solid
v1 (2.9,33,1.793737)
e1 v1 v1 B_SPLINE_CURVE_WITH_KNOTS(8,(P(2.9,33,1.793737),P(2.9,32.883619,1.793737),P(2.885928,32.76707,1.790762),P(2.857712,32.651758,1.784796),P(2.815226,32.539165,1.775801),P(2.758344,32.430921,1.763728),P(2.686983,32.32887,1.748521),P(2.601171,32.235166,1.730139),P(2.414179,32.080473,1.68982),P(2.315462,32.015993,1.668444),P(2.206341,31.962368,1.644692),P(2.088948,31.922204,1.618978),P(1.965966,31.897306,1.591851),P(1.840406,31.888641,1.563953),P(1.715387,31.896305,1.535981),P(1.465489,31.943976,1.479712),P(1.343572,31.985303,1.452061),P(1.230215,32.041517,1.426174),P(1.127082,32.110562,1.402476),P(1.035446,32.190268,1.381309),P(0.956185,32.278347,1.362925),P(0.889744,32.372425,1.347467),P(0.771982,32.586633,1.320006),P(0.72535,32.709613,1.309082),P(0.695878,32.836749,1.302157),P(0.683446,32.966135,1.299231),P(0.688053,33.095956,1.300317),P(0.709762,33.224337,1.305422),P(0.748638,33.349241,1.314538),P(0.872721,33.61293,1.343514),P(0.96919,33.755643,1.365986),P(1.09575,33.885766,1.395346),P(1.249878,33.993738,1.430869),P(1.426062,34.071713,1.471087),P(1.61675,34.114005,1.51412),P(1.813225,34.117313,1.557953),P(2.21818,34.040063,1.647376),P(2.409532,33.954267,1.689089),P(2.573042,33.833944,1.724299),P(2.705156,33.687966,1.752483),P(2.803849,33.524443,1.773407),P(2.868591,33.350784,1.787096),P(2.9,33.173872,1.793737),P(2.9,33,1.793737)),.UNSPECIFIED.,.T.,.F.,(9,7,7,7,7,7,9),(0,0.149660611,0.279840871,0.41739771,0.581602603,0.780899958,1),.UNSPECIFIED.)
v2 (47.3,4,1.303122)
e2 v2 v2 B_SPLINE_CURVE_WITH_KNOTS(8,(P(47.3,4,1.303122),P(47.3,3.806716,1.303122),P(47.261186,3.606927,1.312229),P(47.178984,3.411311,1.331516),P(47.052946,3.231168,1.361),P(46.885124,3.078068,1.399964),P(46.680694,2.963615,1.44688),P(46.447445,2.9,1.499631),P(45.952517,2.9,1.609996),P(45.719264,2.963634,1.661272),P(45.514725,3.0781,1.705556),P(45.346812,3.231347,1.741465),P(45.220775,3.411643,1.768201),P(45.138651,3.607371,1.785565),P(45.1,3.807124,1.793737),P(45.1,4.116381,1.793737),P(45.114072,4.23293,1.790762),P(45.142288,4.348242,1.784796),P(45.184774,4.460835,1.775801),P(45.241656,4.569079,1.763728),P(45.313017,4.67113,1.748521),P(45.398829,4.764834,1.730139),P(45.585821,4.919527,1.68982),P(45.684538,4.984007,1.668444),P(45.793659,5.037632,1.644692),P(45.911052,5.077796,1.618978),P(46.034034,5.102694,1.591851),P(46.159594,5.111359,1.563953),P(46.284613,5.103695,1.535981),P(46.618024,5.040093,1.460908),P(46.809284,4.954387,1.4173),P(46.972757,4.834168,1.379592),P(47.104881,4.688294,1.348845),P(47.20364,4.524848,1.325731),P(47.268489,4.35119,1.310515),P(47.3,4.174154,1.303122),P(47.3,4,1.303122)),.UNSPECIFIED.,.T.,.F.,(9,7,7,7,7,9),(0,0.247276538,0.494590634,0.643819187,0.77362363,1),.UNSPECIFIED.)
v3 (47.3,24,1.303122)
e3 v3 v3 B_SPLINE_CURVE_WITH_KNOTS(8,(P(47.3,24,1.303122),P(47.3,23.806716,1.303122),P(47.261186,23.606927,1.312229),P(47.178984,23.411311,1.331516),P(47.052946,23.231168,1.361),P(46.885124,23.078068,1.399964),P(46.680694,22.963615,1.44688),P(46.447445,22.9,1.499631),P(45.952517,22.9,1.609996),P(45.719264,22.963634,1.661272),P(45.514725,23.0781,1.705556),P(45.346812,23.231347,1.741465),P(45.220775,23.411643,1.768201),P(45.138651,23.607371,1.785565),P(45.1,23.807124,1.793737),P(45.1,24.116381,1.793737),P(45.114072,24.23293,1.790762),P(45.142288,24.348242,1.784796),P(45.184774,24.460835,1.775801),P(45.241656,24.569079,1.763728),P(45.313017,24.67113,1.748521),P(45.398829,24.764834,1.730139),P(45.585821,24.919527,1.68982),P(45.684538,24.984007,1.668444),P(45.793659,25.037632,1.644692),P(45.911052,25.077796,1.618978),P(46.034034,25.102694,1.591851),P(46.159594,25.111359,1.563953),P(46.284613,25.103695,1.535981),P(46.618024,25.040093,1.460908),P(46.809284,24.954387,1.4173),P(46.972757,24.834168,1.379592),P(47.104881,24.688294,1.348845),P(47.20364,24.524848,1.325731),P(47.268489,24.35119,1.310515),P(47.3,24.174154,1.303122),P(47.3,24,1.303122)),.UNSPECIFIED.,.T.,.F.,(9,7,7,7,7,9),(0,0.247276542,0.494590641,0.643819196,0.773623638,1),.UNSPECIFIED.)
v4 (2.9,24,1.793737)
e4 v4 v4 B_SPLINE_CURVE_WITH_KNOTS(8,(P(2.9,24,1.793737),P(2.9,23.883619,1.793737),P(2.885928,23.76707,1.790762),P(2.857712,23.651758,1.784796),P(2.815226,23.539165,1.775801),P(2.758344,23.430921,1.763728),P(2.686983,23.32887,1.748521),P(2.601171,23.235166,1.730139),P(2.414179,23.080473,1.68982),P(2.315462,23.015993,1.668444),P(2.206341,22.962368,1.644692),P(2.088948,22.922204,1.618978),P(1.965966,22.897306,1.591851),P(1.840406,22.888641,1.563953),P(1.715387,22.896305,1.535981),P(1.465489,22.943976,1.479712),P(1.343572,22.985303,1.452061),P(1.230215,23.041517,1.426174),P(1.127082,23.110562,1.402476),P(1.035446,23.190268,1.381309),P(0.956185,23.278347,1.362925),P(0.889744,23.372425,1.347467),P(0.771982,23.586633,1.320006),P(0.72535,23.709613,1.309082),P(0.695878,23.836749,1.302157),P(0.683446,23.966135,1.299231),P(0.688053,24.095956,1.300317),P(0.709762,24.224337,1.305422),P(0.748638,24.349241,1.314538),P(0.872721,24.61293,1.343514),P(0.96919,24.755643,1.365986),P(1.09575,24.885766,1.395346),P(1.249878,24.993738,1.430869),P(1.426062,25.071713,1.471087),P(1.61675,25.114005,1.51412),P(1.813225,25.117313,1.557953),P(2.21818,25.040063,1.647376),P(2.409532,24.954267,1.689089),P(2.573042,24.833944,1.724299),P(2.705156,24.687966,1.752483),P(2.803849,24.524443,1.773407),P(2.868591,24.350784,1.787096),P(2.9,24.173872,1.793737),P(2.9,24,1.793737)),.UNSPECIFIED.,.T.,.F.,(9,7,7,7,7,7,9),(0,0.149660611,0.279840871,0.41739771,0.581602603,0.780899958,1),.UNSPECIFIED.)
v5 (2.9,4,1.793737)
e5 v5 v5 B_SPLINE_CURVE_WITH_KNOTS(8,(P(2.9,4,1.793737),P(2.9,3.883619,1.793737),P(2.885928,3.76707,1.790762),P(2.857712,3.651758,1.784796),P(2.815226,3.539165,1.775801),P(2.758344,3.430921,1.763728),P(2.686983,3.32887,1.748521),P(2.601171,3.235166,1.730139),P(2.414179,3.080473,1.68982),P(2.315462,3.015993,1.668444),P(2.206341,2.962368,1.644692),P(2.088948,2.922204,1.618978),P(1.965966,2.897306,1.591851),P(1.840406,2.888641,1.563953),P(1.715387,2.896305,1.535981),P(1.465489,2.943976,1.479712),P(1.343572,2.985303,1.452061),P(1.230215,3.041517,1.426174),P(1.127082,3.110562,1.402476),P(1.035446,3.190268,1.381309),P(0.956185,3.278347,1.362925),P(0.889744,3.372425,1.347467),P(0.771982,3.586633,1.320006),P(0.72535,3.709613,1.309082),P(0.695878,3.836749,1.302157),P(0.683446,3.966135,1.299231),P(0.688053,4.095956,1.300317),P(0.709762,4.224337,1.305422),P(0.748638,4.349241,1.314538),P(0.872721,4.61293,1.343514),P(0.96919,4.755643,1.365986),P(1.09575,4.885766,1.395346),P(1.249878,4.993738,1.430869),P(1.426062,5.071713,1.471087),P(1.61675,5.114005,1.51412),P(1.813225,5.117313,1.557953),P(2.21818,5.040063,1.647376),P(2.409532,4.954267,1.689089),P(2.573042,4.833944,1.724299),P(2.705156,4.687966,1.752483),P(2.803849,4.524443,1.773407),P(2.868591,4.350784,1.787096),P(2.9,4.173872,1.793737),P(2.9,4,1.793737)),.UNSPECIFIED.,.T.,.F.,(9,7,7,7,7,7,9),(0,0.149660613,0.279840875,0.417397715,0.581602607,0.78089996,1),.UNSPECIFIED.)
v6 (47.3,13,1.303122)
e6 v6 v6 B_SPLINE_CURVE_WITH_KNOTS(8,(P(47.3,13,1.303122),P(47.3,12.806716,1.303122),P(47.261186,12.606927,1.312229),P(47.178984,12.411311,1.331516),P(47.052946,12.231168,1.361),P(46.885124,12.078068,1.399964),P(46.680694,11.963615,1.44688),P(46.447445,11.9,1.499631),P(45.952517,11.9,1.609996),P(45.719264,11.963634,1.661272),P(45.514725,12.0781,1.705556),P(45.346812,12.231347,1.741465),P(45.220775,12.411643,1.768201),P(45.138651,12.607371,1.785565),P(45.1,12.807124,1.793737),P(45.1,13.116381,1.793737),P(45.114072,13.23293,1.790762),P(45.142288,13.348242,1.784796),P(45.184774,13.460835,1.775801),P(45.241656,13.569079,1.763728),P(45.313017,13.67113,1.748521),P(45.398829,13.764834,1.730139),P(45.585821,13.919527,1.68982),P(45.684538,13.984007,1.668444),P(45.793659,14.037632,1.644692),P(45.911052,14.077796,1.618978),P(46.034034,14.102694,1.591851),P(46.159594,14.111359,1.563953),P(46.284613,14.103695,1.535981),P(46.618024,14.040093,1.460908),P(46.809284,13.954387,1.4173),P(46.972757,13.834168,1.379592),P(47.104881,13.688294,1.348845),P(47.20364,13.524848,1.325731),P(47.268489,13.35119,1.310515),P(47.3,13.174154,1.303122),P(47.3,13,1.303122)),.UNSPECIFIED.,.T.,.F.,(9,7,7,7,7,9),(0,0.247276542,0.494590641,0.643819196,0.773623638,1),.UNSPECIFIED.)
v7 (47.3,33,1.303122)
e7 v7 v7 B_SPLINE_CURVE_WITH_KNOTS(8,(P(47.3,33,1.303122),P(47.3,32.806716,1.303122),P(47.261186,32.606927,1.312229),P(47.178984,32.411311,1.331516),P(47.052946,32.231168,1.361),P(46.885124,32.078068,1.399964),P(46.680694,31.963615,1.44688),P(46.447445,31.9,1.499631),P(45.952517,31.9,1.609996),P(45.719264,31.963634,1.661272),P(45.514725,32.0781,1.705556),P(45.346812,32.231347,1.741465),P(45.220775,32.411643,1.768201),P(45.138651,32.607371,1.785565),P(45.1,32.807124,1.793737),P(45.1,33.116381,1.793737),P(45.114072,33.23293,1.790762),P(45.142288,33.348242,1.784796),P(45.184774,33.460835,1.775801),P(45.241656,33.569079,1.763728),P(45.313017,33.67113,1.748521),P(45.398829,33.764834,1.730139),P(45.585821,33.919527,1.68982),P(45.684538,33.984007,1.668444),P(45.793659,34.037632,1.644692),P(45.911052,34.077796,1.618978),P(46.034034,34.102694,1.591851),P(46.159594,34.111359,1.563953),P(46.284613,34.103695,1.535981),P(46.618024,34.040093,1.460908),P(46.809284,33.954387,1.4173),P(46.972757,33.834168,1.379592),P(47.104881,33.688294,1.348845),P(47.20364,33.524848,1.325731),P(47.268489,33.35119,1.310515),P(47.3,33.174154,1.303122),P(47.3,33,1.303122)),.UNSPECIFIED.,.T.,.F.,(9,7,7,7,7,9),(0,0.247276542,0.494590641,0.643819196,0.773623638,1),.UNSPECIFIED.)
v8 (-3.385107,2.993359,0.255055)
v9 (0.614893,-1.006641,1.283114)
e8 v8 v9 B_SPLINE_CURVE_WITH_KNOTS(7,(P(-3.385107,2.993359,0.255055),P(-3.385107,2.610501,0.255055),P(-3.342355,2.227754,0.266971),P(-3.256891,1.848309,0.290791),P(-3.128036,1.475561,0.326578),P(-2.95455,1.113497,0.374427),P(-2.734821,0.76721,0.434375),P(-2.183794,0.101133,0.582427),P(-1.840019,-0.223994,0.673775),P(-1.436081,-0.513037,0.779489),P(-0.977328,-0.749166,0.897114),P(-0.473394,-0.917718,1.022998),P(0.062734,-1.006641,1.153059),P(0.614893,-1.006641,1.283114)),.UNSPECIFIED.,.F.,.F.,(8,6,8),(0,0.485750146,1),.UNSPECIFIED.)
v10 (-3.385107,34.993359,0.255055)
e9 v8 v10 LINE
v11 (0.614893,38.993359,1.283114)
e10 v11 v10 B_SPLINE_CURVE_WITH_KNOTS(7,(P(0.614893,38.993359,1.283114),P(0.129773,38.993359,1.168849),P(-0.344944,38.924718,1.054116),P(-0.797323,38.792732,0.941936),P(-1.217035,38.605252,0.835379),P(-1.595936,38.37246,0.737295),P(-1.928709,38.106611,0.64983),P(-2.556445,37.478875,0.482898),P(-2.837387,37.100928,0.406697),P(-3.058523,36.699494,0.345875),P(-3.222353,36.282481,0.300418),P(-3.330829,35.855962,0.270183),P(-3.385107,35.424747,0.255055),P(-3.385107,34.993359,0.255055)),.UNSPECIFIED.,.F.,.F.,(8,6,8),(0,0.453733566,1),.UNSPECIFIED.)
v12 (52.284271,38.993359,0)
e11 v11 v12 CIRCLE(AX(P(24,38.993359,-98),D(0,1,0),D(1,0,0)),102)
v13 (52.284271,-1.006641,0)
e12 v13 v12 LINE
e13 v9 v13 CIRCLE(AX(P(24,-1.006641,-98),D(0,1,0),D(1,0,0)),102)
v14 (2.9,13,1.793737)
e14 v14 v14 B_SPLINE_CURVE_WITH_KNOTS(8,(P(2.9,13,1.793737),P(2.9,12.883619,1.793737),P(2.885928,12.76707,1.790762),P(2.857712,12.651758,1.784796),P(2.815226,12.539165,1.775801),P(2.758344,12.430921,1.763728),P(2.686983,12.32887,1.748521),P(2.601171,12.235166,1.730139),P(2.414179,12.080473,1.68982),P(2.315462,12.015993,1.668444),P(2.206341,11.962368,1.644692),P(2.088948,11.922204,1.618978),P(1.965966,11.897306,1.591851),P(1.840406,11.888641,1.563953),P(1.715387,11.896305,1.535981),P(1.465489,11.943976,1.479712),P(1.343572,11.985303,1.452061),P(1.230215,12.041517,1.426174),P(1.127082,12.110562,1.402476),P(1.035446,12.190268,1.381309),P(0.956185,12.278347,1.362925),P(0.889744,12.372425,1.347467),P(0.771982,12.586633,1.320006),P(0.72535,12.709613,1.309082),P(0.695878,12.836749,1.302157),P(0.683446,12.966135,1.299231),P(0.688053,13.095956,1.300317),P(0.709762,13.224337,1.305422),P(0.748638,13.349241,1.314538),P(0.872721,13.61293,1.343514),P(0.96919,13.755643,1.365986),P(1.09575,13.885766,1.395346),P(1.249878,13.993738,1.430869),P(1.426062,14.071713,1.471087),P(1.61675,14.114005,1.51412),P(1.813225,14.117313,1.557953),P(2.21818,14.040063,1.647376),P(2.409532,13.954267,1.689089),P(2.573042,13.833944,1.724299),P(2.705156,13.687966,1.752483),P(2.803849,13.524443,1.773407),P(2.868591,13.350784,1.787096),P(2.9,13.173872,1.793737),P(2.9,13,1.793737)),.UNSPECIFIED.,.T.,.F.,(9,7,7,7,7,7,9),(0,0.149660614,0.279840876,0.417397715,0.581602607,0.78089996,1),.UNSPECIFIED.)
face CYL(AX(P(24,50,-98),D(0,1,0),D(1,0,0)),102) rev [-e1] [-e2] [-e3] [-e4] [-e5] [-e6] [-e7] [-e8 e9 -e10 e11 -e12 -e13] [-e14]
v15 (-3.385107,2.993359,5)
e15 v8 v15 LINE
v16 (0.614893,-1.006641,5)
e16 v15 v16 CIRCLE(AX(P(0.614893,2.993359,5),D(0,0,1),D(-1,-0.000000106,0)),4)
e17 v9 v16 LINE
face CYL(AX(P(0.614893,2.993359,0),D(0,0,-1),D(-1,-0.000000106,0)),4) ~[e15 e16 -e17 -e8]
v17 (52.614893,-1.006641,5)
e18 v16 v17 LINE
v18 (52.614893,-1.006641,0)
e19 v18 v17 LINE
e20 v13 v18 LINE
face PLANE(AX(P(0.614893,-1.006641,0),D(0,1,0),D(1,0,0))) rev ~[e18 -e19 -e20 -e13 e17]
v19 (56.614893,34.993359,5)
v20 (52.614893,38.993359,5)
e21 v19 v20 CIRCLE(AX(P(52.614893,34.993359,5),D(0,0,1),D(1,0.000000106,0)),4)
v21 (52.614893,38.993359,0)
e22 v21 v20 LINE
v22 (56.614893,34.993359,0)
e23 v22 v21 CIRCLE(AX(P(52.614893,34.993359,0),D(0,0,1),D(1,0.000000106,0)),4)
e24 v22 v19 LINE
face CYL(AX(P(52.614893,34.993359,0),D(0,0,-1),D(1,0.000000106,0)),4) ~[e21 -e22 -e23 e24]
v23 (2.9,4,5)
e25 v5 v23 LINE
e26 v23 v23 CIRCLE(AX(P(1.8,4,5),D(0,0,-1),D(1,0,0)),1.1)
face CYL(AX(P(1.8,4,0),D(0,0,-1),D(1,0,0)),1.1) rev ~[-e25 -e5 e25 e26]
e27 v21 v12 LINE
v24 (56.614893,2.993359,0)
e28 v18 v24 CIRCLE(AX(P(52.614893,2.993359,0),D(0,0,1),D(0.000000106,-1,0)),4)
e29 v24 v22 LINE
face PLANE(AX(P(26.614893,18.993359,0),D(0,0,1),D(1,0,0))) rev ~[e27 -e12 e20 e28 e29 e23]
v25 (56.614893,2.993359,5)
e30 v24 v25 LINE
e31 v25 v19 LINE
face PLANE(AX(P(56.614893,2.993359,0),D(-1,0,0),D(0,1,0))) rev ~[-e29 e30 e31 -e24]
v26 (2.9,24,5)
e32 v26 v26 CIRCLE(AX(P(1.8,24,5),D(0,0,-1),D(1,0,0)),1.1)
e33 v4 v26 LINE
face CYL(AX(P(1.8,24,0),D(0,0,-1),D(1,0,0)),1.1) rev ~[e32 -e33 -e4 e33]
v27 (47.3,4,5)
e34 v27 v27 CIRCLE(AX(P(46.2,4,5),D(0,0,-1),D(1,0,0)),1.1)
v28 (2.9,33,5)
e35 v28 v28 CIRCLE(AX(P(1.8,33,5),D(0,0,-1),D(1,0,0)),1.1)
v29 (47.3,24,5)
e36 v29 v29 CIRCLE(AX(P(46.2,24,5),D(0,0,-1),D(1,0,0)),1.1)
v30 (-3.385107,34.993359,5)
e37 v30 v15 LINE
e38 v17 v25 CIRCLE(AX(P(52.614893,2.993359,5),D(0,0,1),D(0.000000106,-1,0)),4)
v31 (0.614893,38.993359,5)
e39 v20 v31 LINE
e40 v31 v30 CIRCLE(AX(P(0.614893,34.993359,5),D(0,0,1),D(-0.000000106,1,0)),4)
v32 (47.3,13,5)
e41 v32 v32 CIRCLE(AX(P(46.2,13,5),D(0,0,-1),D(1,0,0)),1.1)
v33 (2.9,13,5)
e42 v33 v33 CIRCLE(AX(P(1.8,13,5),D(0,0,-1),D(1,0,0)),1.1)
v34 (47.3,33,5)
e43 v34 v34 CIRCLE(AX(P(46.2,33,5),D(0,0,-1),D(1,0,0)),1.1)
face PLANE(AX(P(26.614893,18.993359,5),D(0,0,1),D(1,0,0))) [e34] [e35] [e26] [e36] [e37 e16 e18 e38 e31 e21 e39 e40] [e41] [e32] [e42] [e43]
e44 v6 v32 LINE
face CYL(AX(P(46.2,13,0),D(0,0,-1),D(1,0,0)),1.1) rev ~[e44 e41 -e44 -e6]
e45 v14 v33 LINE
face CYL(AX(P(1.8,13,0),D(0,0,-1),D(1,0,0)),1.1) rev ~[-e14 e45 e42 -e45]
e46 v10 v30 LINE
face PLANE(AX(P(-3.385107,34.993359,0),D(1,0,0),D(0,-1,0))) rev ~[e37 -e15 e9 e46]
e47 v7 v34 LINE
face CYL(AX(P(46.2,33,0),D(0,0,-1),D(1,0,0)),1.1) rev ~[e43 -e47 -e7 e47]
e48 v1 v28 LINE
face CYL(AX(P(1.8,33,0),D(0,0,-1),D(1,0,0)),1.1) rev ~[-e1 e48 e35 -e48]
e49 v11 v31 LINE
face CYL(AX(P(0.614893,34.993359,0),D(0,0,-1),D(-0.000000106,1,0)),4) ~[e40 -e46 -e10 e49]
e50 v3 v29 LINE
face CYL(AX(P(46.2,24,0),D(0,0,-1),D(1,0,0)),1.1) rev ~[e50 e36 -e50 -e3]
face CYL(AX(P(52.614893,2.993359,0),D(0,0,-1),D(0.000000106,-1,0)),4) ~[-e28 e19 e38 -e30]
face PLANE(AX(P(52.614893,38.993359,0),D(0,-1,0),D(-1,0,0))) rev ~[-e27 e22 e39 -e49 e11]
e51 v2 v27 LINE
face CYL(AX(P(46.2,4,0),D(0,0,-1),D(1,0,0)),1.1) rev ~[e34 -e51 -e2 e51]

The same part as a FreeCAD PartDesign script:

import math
import FreeCAD as App
import Part
import Sketcher
from FreeCAD import Vector

doc = App.newDocument("Part")
body = doc.addObject("PartDesign::Body", "Body")

# Sketch on XZ plane
sketch1 = body.newObject("Sketcher::SketchObject", "Sketch")
sketch1.AttachmentSupport = (doc.getObject("XZ_Plane"), [""])
sketch1.MapMode = "FlatFace"
sketch1.AttachmentOffset = App.Placement(Vector(0, 0, -50), App.Rotation())
sketch1.addGeometry(Part.Circle(Vector(24, -98, 0), Vector(0, 0, 1), 102), False)
sketch1.addConstraint([
    Sketcher.Constraint("Diameter", 0, 204.0),
    Sketcher.Constraint("DistanceX", -1, 1, 0, 3, 24.0),
    Sketcher.Constraint("DistanceY", 0, 3, -1, 1, 98.0),
])
pad1 = body.newObject("PartDesign::Pad", "Pad")
pad1.Profile = sketch1
pad1.Length = 80
body2 = doc.addObject("PartDesign::Body", "Body001")

# Sketch on XY plane
sketch2 = body2.newObject("Sketcher::SketchObject", "Sketch001")
sketch2.AttachmentSupport = (doc.getObject("XY_Plane001"), [""])
sketch2.MapMode = "FlatFace"
sketch2.addGeometry([
    Part.LineSegment(Vector(0.614893, -1.006641, 0), Vector(52.614893, -1.006641, 0)),  # 0
    Part.ArcOfCircle(Part.Circle(Vector(52.614893, 2.993359, 0), Vector(0, 0, 1), 4), math.radians(-89.999994), math.radians(-0.000006)),  # 1
    Part.LineSegment(Vector(56.614893, 2.993359, 0), Vector(56.614893, 34.993359, 0)),  # 2
    Part.ArcOfCircle(Part.Circle(Vector(52.614893, 34.993359, 0), Vector(0, 0, 1), 4), math.radians(0.000006), math.radians(89.999994)),  # 3
    Part.LineSegment(Vector(52.614893, 38.993359, 0), Vector(0.614893, 38.993359, 0)),  # 4
    Part.ArcOfCircle(Part.Circle(Vector(0.614893, 34.993359, 0), Vector(0, 0, 1), 4), math.radians(90.000006), math.radians(179.999994)),  # 5
    Part.LineSegment(Vector(-3.385107, 34.993359, 0), Vector(-3.385107, 2.993359, 0)),  # 6
    Part.ArcOfCircle(Part.Circle(Vector(0.614893, 2.993359, 0), Vector(0, 0, 1), 4), math.radians(-179.999994), math.radians(-90.000006)),  # 7
], False)
sketch2.addConstraint([
    Sketcher.Constraint("Tangent", 0, 2, 1, 1),
    Sketcher.Constraint("Tangent", 1, 2, 2, 1),
    Sketcher.Constraint("Tangent", 2, 2, 3, 1),
    Sketcher.Constraint("Tangent", 3, 2, 4, 1),
    Sketcher.Constraint("Tangent", 4, 2, 5, 1),
    Sketcher.Constraint("Tangent", 5, 2, 6, 1),
    Sketcher.Constraint("Tangent", 6, 2, 7, 1),
    Sketcher.Constraint("Tangent", 7, 2, 0, 1),
    Sketcher.Constraint("Horizontal", 0),
    Sketcher.Constraint("Vertical", 2),
    Sketcher.Constraint("Horizontal", 4),
    Sketcher.Constraint("Vertical", 6),
    Sketcher.Constraint("Equal", 1, 3),
    Sketcher.Constraint("Equal", 3, 5),
    Sketcher.Constraint("Equal", 5, 7),
    Sketcher.Constraint("Radius", 1, 4.0),
    Sketcher.Constraint("DistanceX", 0, 1, 0, 2, 52.0),
    Sketcher.Constraint("DistanceY", 2, 1, 2, 2, 32.0),
    Sketcher.Constraint("DistanceY", -1, 1, 1, 3, 2.993359),
    Sketcher.Constraint("DistanceX", -1, 1, 1, 3, 52.614893),
])
pad2 = body2.newObject("PartDesign::Pad", "Pad001")
pad2.Profile = sketch2
pad2.Length = 5

# Sketch on XY plane
sketch3 = body2.newObject("Sketcher::SketchObject", "Sketch002")
sketch3.AttachmentSupport = (doc.getObject("XY_Plane001"), [""])
sketch3.MapMode = "FlatFace"
sketch3.addGeometry([
    Part.Circle(Vector(1.8, 4, 0), Vector(0, 0, 1), 1.1),  # 0
    Part.Circle(Vector(1.8, 13, 0), Vector(0, 0, 1), 1.1),  # 1
    Part.Circle(Vector(1.8, 24, 0), Vector(0, 0, 1), 1.1),  # 2
    Part.Circle(Vector(1.8, 33, 0), Vector(0, 0, 1), 1.1),  # 3
    Part.Circle(Vector(46.2, 4, 0), Vector(0, 0, 1), 1.1),  # 4
    Part.Circle(Vector(46.2, 13, 0), Vector(0, 0, 1), 1.1),  # 5
    Part.Circle(Vector(46.2, 24, 0), Vector(0, 0, 1), 1.1),  # 6
    Part.Circle(Vector(46.2, 33, 0), Vector(0, 0, 1), 1.1),  # 7
], False)
sketch3.addConstraint([
    Sketcher.Constraint("Equal", 0, 1),
    Sketcher.Constraint("Equal", 1, 2),
    Sketcher.Constraint("Equal", 2, 3),
    Sketcher.Constraint("Equal", 3, 4),
    Sketcher.Constraint("Equal", 4, 5),
    Sketcher.Constraint("Equal", 5, 6),
    Sketcher.Constraint("Equal", 6, 7),
    Sketcher.Constraint("Horizontal", 0, 3, 4, 3),
    Sketcher.Constraint("Horizontal", 1, 3, 5, 3),
    Sketcher.Constraint("Horizontal", 2, 3, 6, 3),
    Sketcher.Constraint("Horizontal", 3, 3, 7, 3),
    Sketcher.Constraint("Vertical", 0, 3, 1, 3),
    Sketcher.Constraint("Vertical", 1, 3, 2, 3),
    Sketcher.Constraint("Vertical", 2, 3, 3, 3),
    Sketcher.Constraint("Vertical", 4, 3, 5, 3),
    Sketcher.Constraint("Vertical", 5, 3, 6, 3),
    Sketcher.Constraint("Vertical", 6, 3, 7, 3),
    Sketcher.Constraint("Diameter", 0, 2.2),
    Sketcher.Constraint("DistanceY", -1, 1, 0, 3, 4.0),
    Sketcher.Constraint("DistanceY", -1, 1, 1, 3, 13.0),
    Sketcher.Constraint("DistanceY", -1, 1, 2, 3, 24.0),
    Sketcher.Constraint("DistanceY", -1, 1, 3, 3, 33.0),
    Sketcher.Constraint("DistanceX", -1, 1, 0, 3, 1.8),
    Sketcher.Constraint("DistanceX", -1, 1, 4, 3, 46.2),
])
pocket1 = body2.newObject("PartDesign::Pocket", "Pocket")
pocket1.Profile = sketch3
pocket1.Length = 8
pocket1.Reversed = True
doc.recompute()

boolean = body2.newObject("PartDesign::Boolean", "Boolean")
boolean.Type = "Cut"
boolean.addObjects([body])

doc.recompute()
